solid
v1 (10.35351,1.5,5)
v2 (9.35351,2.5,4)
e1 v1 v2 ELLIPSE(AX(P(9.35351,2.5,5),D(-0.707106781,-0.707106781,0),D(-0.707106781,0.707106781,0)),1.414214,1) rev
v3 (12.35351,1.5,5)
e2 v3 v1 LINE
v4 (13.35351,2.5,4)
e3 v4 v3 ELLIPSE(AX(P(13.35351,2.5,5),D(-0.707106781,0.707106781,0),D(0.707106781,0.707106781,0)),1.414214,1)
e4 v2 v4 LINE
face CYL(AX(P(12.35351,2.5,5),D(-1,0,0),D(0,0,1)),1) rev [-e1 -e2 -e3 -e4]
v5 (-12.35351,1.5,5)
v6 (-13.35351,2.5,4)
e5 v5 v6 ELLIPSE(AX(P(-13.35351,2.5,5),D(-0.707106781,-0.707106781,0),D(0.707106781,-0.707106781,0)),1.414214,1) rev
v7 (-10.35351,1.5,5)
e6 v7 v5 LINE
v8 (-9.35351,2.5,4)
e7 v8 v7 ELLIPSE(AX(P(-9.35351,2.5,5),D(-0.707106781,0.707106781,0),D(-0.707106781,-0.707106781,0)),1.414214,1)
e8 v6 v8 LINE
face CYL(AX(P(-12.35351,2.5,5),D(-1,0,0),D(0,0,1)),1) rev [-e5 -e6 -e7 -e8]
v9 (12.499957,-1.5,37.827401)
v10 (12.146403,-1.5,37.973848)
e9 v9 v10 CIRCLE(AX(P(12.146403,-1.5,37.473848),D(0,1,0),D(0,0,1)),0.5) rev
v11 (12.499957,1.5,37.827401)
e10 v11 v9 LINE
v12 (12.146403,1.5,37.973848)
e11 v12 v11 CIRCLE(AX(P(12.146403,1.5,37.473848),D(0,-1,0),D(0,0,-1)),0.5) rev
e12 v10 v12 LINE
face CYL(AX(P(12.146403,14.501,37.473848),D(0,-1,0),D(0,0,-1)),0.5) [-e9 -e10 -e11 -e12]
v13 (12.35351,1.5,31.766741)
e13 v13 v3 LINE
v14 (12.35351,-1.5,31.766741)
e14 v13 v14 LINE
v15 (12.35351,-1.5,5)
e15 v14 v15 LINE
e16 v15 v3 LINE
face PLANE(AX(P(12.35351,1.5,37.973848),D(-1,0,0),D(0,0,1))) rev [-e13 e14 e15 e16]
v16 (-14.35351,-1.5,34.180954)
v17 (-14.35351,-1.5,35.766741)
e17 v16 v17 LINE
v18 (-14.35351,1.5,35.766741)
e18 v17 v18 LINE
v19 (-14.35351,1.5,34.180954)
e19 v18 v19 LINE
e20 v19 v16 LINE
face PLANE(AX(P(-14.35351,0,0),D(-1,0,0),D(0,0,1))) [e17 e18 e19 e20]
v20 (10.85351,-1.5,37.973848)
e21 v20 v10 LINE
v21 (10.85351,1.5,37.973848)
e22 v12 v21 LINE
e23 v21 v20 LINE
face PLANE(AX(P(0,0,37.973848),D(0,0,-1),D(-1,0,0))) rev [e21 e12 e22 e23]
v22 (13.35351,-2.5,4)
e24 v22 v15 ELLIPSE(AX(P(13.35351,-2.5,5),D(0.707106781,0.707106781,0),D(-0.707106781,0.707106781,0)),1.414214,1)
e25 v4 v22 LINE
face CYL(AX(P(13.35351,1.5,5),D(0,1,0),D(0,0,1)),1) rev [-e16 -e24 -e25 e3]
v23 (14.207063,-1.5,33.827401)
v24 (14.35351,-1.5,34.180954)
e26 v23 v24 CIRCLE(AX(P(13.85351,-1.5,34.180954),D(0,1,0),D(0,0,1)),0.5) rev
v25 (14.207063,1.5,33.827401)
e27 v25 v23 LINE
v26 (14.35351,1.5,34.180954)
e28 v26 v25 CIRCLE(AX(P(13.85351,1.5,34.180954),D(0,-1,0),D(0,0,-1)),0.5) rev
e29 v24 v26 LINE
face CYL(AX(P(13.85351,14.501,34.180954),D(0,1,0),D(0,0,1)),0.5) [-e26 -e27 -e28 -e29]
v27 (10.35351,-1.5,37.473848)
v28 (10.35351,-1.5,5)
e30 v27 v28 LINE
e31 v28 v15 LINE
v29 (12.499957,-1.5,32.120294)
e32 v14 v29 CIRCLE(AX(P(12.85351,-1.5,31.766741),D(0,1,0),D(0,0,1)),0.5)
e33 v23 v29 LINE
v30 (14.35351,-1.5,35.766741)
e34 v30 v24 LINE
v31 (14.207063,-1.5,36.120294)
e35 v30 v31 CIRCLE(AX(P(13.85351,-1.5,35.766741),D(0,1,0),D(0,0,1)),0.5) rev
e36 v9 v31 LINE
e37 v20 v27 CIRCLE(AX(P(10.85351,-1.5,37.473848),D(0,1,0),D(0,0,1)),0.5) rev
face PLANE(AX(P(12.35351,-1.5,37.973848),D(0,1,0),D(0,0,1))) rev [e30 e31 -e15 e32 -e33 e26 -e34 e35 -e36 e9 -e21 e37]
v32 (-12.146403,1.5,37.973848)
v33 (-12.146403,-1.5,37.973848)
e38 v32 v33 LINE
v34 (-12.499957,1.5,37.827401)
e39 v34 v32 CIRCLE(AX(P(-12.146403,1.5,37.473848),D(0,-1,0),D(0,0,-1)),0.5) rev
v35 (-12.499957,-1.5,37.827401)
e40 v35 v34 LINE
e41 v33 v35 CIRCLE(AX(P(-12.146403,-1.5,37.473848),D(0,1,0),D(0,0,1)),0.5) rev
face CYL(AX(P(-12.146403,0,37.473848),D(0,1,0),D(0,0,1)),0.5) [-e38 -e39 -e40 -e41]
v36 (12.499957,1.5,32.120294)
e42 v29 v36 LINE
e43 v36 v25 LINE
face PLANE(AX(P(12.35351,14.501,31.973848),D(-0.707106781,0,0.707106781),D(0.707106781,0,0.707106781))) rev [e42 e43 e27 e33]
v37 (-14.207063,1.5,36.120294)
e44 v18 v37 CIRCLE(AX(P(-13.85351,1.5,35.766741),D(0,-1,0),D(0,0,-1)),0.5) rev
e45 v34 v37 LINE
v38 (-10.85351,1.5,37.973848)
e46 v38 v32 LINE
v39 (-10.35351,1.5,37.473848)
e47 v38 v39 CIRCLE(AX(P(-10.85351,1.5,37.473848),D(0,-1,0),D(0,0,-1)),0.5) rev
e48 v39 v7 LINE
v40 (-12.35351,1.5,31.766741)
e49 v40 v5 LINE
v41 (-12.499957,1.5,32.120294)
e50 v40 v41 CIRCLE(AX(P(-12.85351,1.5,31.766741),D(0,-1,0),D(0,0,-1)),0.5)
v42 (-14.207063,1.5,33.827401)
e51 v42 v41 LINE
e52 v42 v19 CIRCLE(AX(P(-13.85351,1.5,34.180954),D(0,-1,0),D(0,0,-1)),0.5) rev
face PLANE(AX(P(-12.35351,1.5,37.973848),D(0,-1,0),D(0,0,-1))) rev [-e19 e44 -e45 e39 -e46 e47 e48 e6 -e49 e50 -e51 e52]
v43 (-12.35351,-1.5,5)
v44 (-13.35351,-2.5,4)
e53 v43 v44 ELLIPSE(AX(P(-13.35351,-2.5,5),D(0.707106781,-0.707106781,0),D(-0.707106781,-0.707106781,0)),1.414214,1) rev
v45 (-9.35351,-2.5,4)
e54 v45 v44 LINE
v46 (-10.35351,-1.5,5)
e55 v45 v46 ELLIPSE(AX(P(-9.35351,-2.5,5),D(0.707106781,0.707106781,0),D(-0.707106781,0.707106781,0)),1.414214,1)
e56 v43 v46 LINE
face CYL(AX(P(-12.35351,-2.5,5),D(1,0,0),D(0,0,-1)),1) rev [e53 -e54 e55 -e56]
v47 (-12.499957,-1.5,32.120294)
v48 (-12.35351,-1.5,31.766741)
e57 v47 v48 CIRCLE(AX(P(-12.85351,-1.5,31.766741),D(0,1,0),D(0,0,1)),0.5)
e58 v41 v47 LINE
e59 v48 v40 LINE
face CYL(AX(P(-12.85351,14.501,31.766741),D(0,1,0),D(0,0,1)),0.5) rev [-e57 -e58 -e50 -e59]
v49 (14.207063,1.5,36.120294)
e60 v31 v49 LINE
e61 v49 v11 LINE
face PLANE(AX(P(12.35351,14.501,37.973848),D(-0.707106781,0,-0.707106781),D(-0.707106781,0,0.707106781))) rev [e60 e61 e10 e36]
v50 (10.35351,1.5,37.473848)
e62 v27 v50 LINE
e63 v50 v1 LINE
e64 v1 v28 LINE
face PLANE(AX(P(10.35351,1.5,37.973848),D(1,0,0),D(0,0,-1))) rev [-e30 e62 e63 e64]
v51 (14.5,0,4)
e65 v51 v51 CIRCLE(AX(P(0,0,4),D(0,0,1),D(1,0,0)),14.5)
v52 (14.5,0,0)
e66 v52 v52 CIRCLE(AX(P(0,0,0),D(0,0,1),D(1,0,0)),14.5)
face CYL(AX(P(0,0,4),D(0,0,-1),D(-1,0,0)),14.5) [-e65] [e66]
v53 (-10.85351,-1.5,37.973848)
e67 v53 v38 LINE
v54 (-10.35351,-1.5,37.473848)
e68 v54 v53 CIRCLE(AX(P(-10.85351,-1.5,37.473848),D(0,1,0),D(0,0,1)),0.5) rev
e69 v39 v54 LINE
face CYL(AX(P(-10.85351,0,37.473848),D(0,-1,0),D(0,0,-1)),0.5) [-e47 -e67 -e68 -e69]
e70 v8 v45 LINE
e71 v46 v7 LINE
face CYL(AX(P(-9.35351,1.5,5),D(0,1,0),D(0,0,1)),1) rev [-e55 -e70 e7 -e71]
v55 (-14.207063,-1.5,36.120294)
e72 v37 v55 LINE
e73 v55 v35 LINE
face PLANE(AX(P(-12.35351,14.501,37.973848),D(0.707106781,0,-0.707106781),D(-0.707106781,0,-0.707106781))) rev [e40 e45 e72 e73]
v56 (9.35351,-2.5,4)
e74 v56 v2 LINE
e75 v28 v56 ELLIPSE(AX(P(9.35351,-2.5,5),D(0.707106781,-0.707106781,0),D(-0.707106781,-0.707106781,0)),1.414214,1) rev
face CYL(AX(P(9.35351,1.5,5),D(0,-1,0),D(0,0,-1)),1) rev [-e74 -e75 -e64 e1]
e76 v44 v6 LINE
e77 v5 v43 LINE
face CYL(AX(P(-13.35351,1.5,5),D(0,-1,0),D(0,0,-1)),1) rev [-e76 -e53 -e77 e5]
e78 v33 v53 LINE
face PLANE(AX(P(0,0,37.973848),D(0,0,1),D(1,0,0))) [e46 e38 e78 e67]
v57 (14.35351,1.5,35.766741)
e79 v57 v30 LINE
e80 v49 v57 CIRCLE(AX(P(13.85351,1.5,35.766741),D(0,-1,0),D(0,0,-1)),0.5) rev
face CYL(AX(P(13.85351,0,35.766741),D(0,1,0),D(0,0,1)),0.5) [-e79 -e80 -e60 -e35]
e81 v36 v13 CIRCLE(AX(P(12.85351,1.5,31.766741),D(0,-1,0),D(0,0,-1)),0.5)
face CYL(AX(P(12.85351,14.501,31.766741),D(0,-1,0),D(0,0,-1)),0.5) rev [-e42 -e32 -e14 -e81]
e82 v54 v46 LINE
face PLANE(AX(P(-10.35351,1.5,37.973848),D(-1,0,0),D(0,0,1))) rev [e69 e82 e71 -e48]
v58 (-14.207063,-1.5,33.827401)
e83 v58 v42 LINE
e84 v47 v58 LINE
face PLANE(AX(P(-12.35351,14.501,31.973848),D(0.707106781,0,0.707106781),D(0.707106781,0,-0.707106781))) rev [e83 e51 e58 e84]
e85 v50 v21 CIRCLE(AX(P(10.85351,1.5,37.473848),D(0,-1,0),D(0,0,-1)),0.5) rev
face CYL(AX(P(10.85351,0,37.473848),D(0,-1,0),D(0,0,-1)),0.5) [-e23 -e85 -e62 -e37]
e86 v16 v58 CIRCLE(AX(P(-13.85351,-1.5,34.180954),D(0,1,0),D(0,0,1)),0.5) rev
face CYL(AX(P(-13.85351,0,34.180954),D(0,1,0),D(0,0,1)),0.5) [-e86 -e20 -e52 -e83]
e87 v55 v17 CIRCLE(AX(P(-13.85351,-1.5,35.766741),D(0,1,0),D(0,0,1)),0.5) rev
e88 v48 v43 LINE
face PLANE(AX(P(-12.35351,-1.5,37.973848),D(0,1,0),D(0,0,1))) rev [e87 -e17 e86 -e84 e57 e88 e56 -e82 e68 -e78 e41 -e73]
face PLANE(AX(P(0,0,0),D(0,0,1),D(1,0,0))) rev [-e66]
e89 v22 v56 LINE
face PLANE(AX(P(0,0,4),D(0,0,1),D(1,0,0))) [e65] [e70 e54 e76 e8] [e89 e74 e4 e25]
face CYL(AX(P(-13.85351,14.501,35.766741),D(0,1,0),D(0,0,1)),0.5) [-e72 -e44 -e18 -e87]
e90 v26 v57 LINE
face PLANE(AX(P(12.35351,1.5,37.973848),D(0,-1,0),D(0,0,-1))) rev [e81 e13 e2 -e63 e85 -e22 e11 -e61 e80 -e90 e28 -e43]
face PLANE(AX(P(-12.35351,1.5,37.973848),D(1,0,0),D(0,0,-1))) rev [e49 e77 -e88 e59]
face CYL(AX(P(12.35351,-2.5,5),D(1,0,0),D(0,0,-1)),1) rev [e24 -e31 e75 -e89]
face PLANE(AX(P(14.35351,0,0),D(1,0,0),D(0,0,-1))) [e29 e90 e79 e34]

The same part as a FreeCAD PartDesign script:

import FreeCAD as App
import Part
import Sketcher
Q = App.Units.Quantity


def edges_at(feature, points):
    """Names of the edges that pass closest to the given points."""
    edges = feature.Shape.Edges
    near = lambda p: min(range(len(edges)), key=lambda i: edges[i].distToShape(Part.Vertex(*p))[0])
    return sorted({f"Edge{near(p) + 1}" for p in points})


def add_polygon(sketch, points):
    """Adds a closed chain of lines whose ends are joined by coincident constraints."""
    first, n = sketch.GeometryCount, len(points)
    for a, b in zip(points, points[1:] + points[:1]):
        sketch.addGeometry(Part.LineSegment(App.Vector(*a, 0), App.Vector(*b, 0)), False)
    for i in range(n):
        sketch.addConstraint(Sketcher.Constraint("Coincident", first + i, 2, first + (i + 1) % n, 1))

doc = App.newDocument("Part")
params = doc.addObject("Spreadsheet::Sheet", "Params")
for row, (alias, value) in enumerate([
    ("sketch1_diameter", "29 mm"),
    ("pad1_length", "4 mm"),
    ("sketch2_width", "2 mm"),
    ("sketch2_height", "3 mm"),
    ("pad2_length", "33.973848 mm"),
    ("sketch3_width", "3 mm"),
    ("sketch3_height", "6 mm"),
    ("pad3_length", "2 mm"),
    ("sketch4_width", "2 mm"),
    ("sketch5_width", "2 mm"),
    ("sketch6_width", "3 mm"),
    ("sketch6_height", "6 mm"),
    ("pad4_length", "2 mm"),
    ("sketch7_width", "2 mm"),
    ("sketch8_width", "2 mm"),
    ("fillet_radius", "1 mm"),
    ("fillet2_radius", "0.5 mm"),
], start=1):
    params.set(f"A{row}", alias)
    params.set(f"B{row}", "=" + value)
    params.setAlias(f"B{row}", alias)

body = doc.addObject("PartDesign::Body", "Body")

# Sketch on XY plane
sketch1 = doc.addObject("Sketcher::SketchObject", "Sketch")
body.addObject(sketch1)
sketch1.AttachmentSupport = (doc.XY_Plane, [""])
sketch1.MapMode = "FlatFace"
sketch1.addGeometry(Part.Circle(App.Vector(0, 0, 0), App.Vector(0, 0, 1), 14.5), False)
sketch1.addConstraint(Sketcher.Constraint("Coincident", 0, 3, -1, 1))
sketch1.addConstraint(Sketcher.Constraint("Diameter", 0, Q("29 mm")))
sketch1.setExpression("Constraints[1]", "Params.sketch1_diameter")
pad1 = doc.addObject("PartDesign::Pad", "Pad")
body.addObject(pad1)
pad1.Profile = sketch1
pad1.setExpression("Length", "Params.pad1_length")

# Sketch on XY plane
sketch2 = doc.addObject("Sketcher::SketchObject", "Sketch001")
body.addObject(sketch2)
sketch2.AttachmentSupport = (doc.XY_Plane, [""])
sketch2.MapMode = "FlatFace"
sketch2.AttachmentOffset = App.Placement(App.Vector(0, 0, 4), App.Rotation())
add_polygon(sketch2, [(-12.35351, 1.5), (-12.35351, -1.5), (-10.35351, -1.5), (-10.35351, 1.5)])  # lines 0-3
add_polygon(sketch2, [(10.35351, 1.5), (10.35351, -1.5), (12.35351, -1.5), (12.35351, 1.5)])  # lines 4-7
sketch2.addConstraint(Sketcher.Constraint("Vertical", 0))
sketch2.addConstraint(Sketcher.Constraint("Horizontal", 1))
sketch2.addConstraint(Sketcher.Constraint("Vertical", 2))
sketch2.addConstraint(Sketcher.Constraint("Horizontal", 3))
sketch2.addConstraint(Sketcher.Constraint("Vertical", 4))
sketch2.addConstraint(Sketcher.Constraint("Horizontal", 5))
sketch2.addConstraint(Sketcher.Constraint("Vertical", 6))
sketch2.addConstraint(Sketcher.Constraint("Horizontal", 7))
sketch2.addConstraint(Sketcher.Constraint("Symmetric", 2, 2, 4, 2, -1, 1))
sketch2.addConstraint(Sketcher.Constraint("Symmetric", 0, 2, 6, 2, -1, 1))
sketch2.addConstraint(Sketcher.Constraint("Horizontal", 1, 2, 4, 2))
sketch2.addConstraint(Sketcher.Constraint("DistanceX", 1, 1, 1, 2, Q("2 mm")))
sketch2.addConstraint(Sketcher.Constraint("DistanceY", 0, 2, 0, 1, Q("3 mm")))
sketch2.addConstraint(Sketcher.Constraint("DistanceX", 0, 2, -1, 1, Q("12.35351 mm")))
sketch2.setExpression("Constraints[19]", "Params.sketch2_width")
sketch2.setExpression("Constraints[20]", "Params.sketch2_height")
pad2 = doc.addObject("PartDesign::Pad", "Pad001")
body.addObject(pad2)
pad2.Profile = sketch2
pad2.setExpression("Length", "Params.pad2_length")

# Sketch on YZ plane
sketch3 = doc.addObject("Sketcher::SketchObject", "Sketch002")
body.addObject(sketch3)
sketch3.AttachmentSupport = (doc.YZ_Plane, [""])
sketch3.MapMode = "FlatFace"
sketch3.AttachmentOffset = App.Placement(App.Vector(0, 0, -12.35351), App.Rotation())
add_polygon(sketch3, [(1.5, 37.973848), (1.5, 31.973848), (-1.5, 31.973848), (-1.5, 37.973848)])  # lines 0-3
sketch3.addConstraint(Sketcher.Constraint("Vertical", 0))
sketch3.addConstraint(Sketcher.Constraint("Horizontal", 1))
sketch3.addConstraint(Sketcher.Constraint("Vertical", 2))
sketch3.addConstraint(Sketcher.Constraint("Horizontal", 3))
sketch3.addConstraint(Sketcher.Constraint("DistanceX", 1, 2, 1, 1, Q("3 mm")))
sketch3.addConstraint(Sketcher.Constraint("DistanceY", 0, 2, 0, 1, Q("6 mm")))
sketch3.addConstraint(Sketcher.Constraint("DistanceX", -1, 1, 0, 2, Q("1.5 mm")))
sketch3.addConstraint(Sketcher.Constraint("DistanceY", -1, 1, 0, 2, Q("31.973848 mm")))
sketch3.setExpression("Constraints[8]", "Params.sketch3_width")
sketch3.setExpression("Constraints[9]", "Params.sketch3_height")
pad3 = doc.addObject("PartDesign::Pad", "Pad002")
body.addObject(pad3)
pad3.Profile = sketch3
pad3.setExpression("Length", "Params.pad3_length")
pad3.Reversed = True

# Sketch on XZ plane
sketch4 = doc.addObject("Sketcher::SketchObject", "Sketch003")
body.addObject(sketch4)
sketch4.AttachmentSupport = (doc.XZ_Plane, [""])
sketch4.MapMode = "FlatFace"
sketch4.AttachmentOffset = App.Placement(App.Vector(0, 0, 1.5), App.Rotation())
add_polygon(sketch4, [(-12.35351, 31.973848), (-14.35351, 33.973848), (-14.35351, 31.973848)])  # lines 0-2
sketch4.addConstraint(Sketcher.Constraint("Vertical", 1))
sketch4.addConstraint(Sketcher.Constraint("Horizontal", 2))
sketch4.addConstraint(Sketcher.Constraint("Equal", 2, 1))
sketch4.addConstraint(Sketcher.Constraint("DistanceX", 2, 1, 2, 2, Q("2 mm")))
sketch4.addConstraint(Sketcher.Constraint("DistanceX", 0, 2, -1, 1, Q("14.35351 mm")))
sketch4.addConstraint(Sketcher.Constraint("DistanceY", -1, 1, 0, 2, Q("33.973848 mm")))
sketch4.setExpression("Constraints[6]", "Params.sketch4_width")
pocket1 = doc.addObject("PartDesign::Pocket", "Pocket")
body.addObject(pocket1)
pocket1.Profile = sketch4
pocket1.Type = "UpToFirst"

# Sketch on XZ plane
sketch5 = doc.addObject("Sketcher::SketchObject", "Sketch004")
body.addObject(sketch5)
sketch5.AttachmentSupport = (doc.XZ_Plane, [""])
sketch5.MapMode = "FlatFace"
sketch5.AttachmentOffset = App.Placement(App.Vector(0, 0, 1.5), App.Rotation())
add_polygon(sketch5, [(-14.35351, 35.973848), (-12.35351, 37.973848), (-14.35351, 37.973848)])  # lines 0-2
sketch5.addConstraint(Sketcher.Constraint("Horizontal", 1))
sketch5.addConstraint(Sketcher.Constraint("Vertical", 2))
sketch5.addConstraint(Sketcher.Constraint("Equal", 1, 2))
sketch5.addConstraint(Sketcher.Constraint("DistanceX", 1, 2, 1, 1, Q("2 mm")))
sketch5.addConstraint(Sketcher.Constraint("DistanceX", 0, 2, -1, 1, Q("12.35351 mm")))
sketch5.addConstraint(Sketcher.Constraint("DistanceY", -1, 1, 0, 2, Q("37.973848 mm")))
sketch5.setExpression("Constraints[6]", "Params.sketch5_width")
pocket2 = doc.addObject("PartDesign::Pocket", "Pocket001")
body.addObject(pocket2)
pocket2.Profile = sketch5
pocket2.Type = "UpToFirst"

# Sketch on YZ plane
sketch6 = doc.addObject("Sketcher::SketchObject", "Sketch005")
body.addObject(sketch6)
sketch6.AttachmentSupport = (doc.YZ_Plane, [""])
sketch6.MapMode = "FlatFace"
sketch6.AttachmentOffset = App.Placement(App.Vector(0, 0, 12.35351), App.Rotation())
add_polygon(sketch6, [(-1.5, 37.973848), (-1.5, 31.973848), (1.5, 31.973848), (1.5, 37.973848)])  # lines 0-3
sketch6.addConstraint(Sketcher.Constraint("Vertical", 0))
sketch6.addConstraint(Sketcher.Constraint("Horizontal", 1))
sketch6.addConstraint(Sketcher.Constraint("Vertical", 2))
sketch6.addConstraint(Sketcher.Constraint("Horizontal", 3))
sketch6.addConstraint(Sketcher.Constraint("DistanceX", 1, 1, 1, 2, Q("3 mm")))
sketch6.addConstraint(Sketcher.Constraint("DistanceY", 0, 2, 0, 1, Q("6 mm")))
sketch6.addConstraint(Sketcher.Constraint("DistanceX", 0, 2, -1, 1, Q("1.5 mm")))
sketch6.addConstraint(Sketcher.Constraint("DistanceY", -1, 1, 0, 2, Q("31.973848 mm")))
sketch6.setExpression("Constraints[8]", "Params.sketch6_width")
sketch6.setExpression("Constraints[9]", "Params.sketch6_height")
pad4 = doc.addObject("PartDesign::Pad", "Pad003")
body.addObject(pad4)
pad4.Profile = sketch6
pad4.setExpression("Length", "Params.pad4_length")

# Sketch on XZ plane
sketch7 = doc.addObject("Sketcher::SketchObject", "Sketch006")
body.addObject(sketch7)
sketch7.AttachmentSupport = (doc.XZ_Plane, [""])
sketch7.MapMode = "FlatFace"
sketch7.AttachmentOffset = App.Placement(App.Vector(0, 0, 1.5), App.Rotation())
add_polygon(sketch7, [(14.35351, 33.973848), (12.35351, 31.973848), (14.35351, 31.973848)])  # lines 0-2
sketch7.addConstraint(Sketcher.Constraint("Horizontal", 1))
sketch7.addConstraint(Sketcher.Constraint("Vertical", 2))
sketch7.addConstraint(Sketcher.Constraint("Equal", 1, 2))
sketch7.addConstraint(Sketcher.Constraint("DistanceX", 1, 1, 1, 2, Q("2 mm")))
sketch7.addConstraint(Sketcher.Constraint("DistanceX", -1, 1, 0, 2, Q("12.35351 mm")))
sketch7.addConstraint(Sketcher.Constraint("DistanceY", -1, 1, 0, 2, Q("31.973848 mm")))
sketch7.setExpression("Constraints[6]", "Params.sketch7_width")
pocket3 = doc.addObject("PartDesign::Pocket", "Pocket002")
body.addObject(pocket3)
pocket3.Profile = sketch7
pocket3.Type = "UpToFirst"

# Sketch on XZ plane
sketch8 = doc.addObject("Sketcher::SketchObject", "Sketch007")
body.addObject(sketch8)
sketch8.AttachmentSupport = (doc.XZ_Plane, [""])
sketch8.MapMode = "FlatFace"
sketch8.AttachmentOffset = App.Placement(App.Vector(0, 0, 1.5), App.Rotation())
add_polygon(sketch8, [(12.35351, 37.973848), (14.35351, 35.973848), (14.35351, 37.973848)])  # lines 0-2
sketch8.addConstraint(Sketcher.Constraint("Vertical", 1))
sketch8.addConstraint(Sketcher.Constraint("Horizontal", 2))
sketch8.addConstraint(Sketcher.Constraint("Equal", 2, 1))
sketch8.addConstraint(Sketcher.Constraint("DistanceX", 2, 2, 2, 1, Q("2 mm")))
sketch8.addConstraint(Sketcher.Constraint("DistanceX", -1, 1, 0, 2, Q("14.35351 mm")))
sketch8.addConstraint(Sketcher.Constraint("DistanceY", -1, 1, 0, 2, Q("35.973848 mm")))
sketch8.setExpression("Constraints[6]", "Params.sketch8_width")
pocket4 = doc.addObject("PartDesign::Pocket", "Pocket003")
body.addObject(pocket4)
pocket4.Profile = sketch8
pocket4.Type = "UpToFirst"
doc.recompute()

fillet = doc.addObject("PartDesign::Fillet", "Fillet")
body.addObject(fillet)
fillet.Base = (pocket4, edges_at(pocket4, [
    (-12.354, 0, 4),
    (-11.354, -1.5, 4),
    (12.354, 0, 4),
    (11.354, 1.5, 4),
    (10.354, 0, 4),
    (11.354, -1.5, 4),
    (-10.354, 0, 4),
    (-11.354, 1.5, 4),
]))
fillet.setExpression("Radius", "Params.fillet_radius")
doc.recompute()

fillet2 = doc.addObject("PartDesign::Fillet", "Fillet001")
body.addObject(fillet2)
fillet2.Base = (fillet, edges_at(fillet, [
    (-10.354, 0, 37.974),
    (10.354, 0, 37.974),
    (-12.354, 0, 31.974),
    (-14.354, 0, 33.974),
    (-12.354, 0, 37.974),
    (-14.354, 0, 35.974),
    (12.354, 0, 31.974),
    (14.354, 0, 33.974),
    (12.354, 0, 37.974),
    (14.354, 0, 35.974),
]))
fillet2.setExpression("Radius", "Params.fillet2_radius")

doc.recompute()
